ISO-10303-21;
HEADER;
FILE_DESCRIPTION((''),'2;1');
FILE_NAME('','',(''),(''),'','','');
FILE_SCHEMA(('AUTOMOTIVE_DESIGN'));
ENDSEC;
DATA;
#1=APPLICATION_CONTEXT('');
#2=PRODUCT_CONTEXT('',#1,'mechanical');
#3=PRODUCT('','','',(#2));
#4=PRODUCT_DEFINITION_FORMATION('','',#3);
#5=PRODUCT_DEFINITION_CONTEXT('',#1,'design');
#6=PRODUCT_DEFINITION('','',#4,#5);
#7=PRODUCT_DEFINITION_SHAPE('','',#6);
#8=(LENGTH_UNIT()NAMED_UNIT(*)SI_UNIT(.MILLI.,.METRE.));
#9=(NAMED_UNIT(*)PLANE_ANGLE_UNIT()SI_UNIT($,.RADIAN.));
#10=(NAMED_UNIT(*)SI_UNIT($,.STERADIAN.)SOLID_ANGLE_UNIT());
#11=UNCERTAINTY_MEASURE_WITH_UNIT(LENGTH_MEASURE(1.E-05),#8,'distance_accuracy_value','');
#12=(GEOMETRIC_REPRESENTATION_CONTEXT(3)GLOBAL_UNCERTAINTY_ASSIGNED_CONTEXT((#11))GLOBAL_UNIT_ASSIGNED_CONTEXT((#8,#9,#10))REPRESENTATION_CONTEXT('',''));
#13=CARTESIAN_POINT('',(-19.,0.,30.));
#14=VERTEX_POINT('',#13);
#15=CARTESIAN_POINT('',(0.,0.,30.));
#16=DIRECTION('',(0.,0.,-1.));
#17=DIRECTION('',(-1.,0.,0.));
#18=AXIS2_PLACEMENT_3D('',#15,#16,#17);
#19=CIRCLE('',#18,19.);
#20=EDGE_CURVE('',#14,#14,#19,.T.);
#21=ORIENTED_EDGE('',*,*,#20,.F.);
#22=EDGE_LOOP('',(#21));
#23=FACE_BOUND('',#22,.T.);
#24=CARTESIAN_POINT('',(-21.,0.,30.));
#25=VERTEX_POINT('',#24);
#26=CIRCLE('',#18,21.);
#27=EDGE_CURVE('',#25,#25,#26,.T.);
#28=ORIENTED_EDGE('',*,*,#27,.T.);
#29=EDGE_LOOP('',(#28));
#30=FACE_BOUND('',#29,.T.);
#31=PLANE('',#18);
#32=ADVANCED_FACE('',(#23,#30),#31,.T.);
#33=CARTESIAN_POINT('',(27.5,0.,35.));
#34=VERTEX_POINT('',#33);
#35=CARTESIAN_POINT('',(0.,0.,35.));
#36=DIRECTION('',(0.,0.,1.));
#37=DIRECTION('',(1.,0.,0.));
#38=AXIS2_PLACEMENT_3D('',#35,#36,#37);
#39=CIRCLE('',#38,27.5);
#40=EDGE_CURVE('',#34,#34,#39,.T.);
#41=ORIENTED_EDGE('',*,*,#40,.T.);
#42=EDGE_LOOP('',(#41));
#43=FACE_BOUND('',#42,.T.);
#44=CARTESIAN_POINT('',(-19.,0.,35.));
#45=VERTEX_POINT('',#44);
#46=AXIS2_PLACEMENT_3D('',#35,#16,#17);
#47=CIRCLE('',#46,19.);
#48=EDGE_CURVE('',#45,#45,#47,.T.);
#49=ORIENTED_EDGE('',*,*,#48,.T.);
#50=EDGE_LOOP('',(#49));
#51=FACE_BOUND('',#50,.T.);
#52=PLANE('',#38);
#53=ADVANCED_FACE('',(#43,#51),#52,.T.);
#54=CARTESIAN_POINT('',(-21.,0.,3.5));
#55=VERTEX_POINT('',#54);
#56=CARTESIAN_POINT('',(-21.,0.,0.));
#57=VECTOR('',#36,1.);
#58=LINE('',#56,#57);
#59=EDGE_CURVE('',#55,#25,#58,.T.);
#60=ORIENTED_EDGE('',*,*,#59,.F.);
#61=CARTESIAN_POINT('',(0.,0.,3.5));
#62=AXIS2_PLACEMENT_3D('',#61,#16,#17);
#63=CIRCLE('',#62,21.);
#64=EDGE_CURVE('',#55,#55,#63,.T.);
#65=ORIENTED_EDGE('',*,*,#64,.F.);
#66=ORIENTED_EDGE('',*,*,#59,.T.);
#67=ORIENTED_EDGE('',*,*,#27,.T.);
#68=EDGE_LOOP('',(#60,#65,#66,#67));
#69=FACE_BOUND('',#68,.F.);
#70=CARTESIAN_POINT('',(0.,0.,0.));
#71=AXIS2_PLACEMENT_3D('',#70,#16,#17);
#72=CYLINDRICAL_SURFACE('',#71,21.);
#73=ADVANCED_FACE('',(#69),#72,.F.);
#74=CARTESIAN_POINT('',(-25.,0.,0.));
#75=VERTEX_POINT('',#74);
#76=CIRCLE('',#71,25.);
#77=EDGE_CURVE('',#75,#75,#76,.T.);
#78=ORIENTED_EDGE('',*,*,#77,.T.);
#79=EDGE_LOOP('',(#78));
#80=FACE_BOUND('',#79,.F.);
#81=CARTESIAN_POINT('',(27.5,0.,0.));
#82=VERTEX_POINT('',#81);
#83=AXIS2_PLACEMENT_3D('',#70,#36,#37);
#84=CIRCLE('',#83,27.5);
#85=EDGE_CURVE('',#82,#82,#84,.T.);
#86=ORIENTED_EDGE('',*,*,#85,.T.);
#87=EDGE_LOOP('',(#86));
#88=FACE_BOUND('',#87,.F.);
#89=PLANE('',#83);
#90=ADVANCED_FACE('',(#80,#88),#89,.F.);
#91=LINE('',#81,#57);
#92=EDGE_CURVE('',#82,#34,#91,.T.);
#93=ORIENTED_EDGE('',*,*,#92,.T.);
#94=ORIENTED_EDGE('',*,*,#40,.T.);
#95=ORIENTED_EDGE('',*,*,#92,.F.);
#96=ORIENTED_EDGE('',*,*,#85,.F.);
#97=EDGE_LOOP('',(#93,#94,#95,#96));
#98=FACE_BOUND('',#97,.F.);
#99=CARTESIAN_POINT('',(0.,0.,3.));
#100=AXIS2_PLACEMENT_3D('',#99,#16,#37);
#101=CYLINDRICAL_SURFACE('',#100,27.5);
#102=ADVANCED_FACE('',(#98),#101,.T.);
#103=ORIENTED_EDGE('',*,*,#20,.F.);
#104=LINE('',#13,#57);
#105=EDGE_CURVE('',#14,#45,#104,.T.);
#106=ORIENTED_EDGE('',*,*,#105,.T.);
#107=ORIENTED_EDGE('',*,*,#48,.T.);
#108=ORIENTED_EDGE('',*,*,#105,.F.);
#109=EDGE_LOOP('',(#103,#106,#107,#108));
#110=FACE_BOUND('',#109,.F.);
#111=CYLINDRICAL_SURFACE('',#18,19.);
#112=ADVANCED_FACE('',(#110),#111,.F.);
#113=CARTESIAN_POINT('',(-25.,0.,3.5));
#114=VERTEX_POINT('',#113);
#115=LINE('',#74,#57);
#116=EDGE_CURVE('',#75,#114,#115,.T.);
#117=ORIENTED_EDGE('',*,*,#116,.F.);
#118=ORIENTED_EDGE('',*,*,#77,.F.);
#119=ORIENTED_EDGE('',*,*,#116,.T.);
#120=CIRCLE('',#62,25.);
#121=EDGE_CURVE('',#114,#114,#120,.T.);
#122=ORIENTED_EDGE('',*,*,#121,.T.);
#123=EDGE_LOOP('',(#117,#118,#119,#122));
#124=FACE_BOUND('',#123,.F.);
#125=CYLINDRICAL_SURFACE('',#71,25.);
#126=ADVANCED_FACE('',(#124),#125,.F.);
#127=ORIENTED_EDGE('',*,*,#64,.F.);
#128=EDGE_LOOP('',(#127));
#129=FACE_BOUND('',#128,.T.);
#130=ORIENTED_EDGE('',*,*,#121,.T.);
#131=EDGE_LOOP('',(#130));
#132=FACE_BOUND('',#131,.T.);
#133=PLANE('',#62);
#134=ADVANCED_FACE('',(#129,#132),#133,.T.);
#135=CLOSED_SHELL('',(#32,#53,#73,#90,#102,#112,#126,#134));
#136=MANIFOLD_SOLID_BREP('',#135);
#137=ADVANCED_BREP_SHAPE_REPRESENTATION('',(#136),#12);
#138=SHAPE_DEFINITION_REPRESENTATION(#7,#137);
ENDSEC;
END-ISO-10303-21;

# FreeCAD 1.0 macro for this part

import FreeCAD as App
import Part
import Sketcher

doc = App.newDocument("Part")
body = doc.addObject("PartDesign::Body", "Body")

# Sketch on XY plane
sketch1 = body.newObject("Sketcher::SketchObject", "Sketch")
sketch1.AttachmentSupport = (doc.getObject("XY_Plane"), [""])
sketch1.MapMode = "FlatFace"
sketch1.addGeometry(Part.Circle(App.Vector(0, 0, 0), App.Vector(0, 0, 1), 28), False)
sketch1.addConstraint([
    Sketcher.Constraint("Coincident", 0, 3, -1, 1),
    Sketcher.Constraint("Diameter", 0, 55.0),
])
pad1 = body.newObject("PartDesign::Pad", "Pad")
pad1.Profile = sketch1
pad1.Length = 3

# Sketch on XY plane
sketch2 = body.newObject("Sketcher::SketchObject", "Sketch001")
sketch2.AttachmentSupport = (doc.getObject("XY_Plane"), [""])
sketch2.MapMode = "FlatFace"
sketch2.AttachmentOffset = App.Placement(App.Vector(0, 0, 3), App.Rotation())
sketch2.addGeometry(Part.Circle(App.Vector(0, 0, 0), App.Vector(0, 0, 1), 28), False)
sketch2.addConstraint([
    Sketcher.Constraint("Coincident", 0, 3, -1, 1),
    Sketcher.Constraint("Diameter", 0, 55.0),
])
pad2 = body.newObject("PartDesign::Pad", "Pad001")
pad2.Profile = sketch2
pad2.Length = 32

# Sketch on XY plane
sketch3 = body.newObject("Sketcher::SketchObject", "Sketch002")
sketch3.AttachmentSupport = (doc.getObject("XY_Plane"), [""])
sketch3.MapMode = "FlatFace"
sketch3.addGeometry(Part.Circle(App.Vector(0, 0, 0), App.Vector(0, 0, 1), 21), False)
sketch3.addConstraint([
    Sketcher.Constraint("Coincident", 0, 3, -1, 1),
    Sketcher.Constraint("Diameter", 0, 42.0),
])
pocket1 = body.newObject("PartDesign::Pocket", "Pocket")
pocket1.Profile = sketch3
pocket1.Length = 30
pocket1.Reversed = True

# Sketch on XY plane
sketch4 = body.newObject("Sketcher::SketchObject", "Sketch003")
sketch4.AttachmentSupport = (doc.getObject("XY_Plane"), [""])
sketch4.MapMode = "FlatFace"
sketch4.AttachmentOffset = App.Placement(App.Vector(0, 0, 30), App.Rotation())
sketch4.addGeometry(Part.Circle(App.Vector(0, 0, 0), App.Vector(0, 0, 1), 19), False)
sketch4.addConstraint([
    Sketcher.Constraint("Coincident", 0, 3, -1, 1),
    Sketcher.Constraint("Diameter", 0, 38.0),
])
pocket2 = body.newObject("PartDesign::Pocket", "Pocket001")
pocket2.Profile = sketch4
pocket2.Length = 30
pocket2.Reversed = True

# Sketch on XY plane
sketch5 = body.newObject("Sketcher::SketchObject", "Sketch004")
sketch5.AttachmentSupport = (doc.getObject("XY_Plane"), [""])
sketch5.MapMode = "FlatFace"
sketch5.addGeometry(Part.Circle(App.Vector(0, 0, 0), App.Vector(0, 0, 1), 25), False)
sketch5.addConstraint([
    Sketcher.Constraint("Coincident", 0, 3, -1, 1),
    Sketcher.Constraint("Diameter", 0, 50.0),
])
pocket3 = body.newObject("PartDesign::Pocket", "Pocket002")
pocket3.Profile = sketch5
pocket3.Length = 3.5
pocket3.Reversed = True

doc.recompute()
